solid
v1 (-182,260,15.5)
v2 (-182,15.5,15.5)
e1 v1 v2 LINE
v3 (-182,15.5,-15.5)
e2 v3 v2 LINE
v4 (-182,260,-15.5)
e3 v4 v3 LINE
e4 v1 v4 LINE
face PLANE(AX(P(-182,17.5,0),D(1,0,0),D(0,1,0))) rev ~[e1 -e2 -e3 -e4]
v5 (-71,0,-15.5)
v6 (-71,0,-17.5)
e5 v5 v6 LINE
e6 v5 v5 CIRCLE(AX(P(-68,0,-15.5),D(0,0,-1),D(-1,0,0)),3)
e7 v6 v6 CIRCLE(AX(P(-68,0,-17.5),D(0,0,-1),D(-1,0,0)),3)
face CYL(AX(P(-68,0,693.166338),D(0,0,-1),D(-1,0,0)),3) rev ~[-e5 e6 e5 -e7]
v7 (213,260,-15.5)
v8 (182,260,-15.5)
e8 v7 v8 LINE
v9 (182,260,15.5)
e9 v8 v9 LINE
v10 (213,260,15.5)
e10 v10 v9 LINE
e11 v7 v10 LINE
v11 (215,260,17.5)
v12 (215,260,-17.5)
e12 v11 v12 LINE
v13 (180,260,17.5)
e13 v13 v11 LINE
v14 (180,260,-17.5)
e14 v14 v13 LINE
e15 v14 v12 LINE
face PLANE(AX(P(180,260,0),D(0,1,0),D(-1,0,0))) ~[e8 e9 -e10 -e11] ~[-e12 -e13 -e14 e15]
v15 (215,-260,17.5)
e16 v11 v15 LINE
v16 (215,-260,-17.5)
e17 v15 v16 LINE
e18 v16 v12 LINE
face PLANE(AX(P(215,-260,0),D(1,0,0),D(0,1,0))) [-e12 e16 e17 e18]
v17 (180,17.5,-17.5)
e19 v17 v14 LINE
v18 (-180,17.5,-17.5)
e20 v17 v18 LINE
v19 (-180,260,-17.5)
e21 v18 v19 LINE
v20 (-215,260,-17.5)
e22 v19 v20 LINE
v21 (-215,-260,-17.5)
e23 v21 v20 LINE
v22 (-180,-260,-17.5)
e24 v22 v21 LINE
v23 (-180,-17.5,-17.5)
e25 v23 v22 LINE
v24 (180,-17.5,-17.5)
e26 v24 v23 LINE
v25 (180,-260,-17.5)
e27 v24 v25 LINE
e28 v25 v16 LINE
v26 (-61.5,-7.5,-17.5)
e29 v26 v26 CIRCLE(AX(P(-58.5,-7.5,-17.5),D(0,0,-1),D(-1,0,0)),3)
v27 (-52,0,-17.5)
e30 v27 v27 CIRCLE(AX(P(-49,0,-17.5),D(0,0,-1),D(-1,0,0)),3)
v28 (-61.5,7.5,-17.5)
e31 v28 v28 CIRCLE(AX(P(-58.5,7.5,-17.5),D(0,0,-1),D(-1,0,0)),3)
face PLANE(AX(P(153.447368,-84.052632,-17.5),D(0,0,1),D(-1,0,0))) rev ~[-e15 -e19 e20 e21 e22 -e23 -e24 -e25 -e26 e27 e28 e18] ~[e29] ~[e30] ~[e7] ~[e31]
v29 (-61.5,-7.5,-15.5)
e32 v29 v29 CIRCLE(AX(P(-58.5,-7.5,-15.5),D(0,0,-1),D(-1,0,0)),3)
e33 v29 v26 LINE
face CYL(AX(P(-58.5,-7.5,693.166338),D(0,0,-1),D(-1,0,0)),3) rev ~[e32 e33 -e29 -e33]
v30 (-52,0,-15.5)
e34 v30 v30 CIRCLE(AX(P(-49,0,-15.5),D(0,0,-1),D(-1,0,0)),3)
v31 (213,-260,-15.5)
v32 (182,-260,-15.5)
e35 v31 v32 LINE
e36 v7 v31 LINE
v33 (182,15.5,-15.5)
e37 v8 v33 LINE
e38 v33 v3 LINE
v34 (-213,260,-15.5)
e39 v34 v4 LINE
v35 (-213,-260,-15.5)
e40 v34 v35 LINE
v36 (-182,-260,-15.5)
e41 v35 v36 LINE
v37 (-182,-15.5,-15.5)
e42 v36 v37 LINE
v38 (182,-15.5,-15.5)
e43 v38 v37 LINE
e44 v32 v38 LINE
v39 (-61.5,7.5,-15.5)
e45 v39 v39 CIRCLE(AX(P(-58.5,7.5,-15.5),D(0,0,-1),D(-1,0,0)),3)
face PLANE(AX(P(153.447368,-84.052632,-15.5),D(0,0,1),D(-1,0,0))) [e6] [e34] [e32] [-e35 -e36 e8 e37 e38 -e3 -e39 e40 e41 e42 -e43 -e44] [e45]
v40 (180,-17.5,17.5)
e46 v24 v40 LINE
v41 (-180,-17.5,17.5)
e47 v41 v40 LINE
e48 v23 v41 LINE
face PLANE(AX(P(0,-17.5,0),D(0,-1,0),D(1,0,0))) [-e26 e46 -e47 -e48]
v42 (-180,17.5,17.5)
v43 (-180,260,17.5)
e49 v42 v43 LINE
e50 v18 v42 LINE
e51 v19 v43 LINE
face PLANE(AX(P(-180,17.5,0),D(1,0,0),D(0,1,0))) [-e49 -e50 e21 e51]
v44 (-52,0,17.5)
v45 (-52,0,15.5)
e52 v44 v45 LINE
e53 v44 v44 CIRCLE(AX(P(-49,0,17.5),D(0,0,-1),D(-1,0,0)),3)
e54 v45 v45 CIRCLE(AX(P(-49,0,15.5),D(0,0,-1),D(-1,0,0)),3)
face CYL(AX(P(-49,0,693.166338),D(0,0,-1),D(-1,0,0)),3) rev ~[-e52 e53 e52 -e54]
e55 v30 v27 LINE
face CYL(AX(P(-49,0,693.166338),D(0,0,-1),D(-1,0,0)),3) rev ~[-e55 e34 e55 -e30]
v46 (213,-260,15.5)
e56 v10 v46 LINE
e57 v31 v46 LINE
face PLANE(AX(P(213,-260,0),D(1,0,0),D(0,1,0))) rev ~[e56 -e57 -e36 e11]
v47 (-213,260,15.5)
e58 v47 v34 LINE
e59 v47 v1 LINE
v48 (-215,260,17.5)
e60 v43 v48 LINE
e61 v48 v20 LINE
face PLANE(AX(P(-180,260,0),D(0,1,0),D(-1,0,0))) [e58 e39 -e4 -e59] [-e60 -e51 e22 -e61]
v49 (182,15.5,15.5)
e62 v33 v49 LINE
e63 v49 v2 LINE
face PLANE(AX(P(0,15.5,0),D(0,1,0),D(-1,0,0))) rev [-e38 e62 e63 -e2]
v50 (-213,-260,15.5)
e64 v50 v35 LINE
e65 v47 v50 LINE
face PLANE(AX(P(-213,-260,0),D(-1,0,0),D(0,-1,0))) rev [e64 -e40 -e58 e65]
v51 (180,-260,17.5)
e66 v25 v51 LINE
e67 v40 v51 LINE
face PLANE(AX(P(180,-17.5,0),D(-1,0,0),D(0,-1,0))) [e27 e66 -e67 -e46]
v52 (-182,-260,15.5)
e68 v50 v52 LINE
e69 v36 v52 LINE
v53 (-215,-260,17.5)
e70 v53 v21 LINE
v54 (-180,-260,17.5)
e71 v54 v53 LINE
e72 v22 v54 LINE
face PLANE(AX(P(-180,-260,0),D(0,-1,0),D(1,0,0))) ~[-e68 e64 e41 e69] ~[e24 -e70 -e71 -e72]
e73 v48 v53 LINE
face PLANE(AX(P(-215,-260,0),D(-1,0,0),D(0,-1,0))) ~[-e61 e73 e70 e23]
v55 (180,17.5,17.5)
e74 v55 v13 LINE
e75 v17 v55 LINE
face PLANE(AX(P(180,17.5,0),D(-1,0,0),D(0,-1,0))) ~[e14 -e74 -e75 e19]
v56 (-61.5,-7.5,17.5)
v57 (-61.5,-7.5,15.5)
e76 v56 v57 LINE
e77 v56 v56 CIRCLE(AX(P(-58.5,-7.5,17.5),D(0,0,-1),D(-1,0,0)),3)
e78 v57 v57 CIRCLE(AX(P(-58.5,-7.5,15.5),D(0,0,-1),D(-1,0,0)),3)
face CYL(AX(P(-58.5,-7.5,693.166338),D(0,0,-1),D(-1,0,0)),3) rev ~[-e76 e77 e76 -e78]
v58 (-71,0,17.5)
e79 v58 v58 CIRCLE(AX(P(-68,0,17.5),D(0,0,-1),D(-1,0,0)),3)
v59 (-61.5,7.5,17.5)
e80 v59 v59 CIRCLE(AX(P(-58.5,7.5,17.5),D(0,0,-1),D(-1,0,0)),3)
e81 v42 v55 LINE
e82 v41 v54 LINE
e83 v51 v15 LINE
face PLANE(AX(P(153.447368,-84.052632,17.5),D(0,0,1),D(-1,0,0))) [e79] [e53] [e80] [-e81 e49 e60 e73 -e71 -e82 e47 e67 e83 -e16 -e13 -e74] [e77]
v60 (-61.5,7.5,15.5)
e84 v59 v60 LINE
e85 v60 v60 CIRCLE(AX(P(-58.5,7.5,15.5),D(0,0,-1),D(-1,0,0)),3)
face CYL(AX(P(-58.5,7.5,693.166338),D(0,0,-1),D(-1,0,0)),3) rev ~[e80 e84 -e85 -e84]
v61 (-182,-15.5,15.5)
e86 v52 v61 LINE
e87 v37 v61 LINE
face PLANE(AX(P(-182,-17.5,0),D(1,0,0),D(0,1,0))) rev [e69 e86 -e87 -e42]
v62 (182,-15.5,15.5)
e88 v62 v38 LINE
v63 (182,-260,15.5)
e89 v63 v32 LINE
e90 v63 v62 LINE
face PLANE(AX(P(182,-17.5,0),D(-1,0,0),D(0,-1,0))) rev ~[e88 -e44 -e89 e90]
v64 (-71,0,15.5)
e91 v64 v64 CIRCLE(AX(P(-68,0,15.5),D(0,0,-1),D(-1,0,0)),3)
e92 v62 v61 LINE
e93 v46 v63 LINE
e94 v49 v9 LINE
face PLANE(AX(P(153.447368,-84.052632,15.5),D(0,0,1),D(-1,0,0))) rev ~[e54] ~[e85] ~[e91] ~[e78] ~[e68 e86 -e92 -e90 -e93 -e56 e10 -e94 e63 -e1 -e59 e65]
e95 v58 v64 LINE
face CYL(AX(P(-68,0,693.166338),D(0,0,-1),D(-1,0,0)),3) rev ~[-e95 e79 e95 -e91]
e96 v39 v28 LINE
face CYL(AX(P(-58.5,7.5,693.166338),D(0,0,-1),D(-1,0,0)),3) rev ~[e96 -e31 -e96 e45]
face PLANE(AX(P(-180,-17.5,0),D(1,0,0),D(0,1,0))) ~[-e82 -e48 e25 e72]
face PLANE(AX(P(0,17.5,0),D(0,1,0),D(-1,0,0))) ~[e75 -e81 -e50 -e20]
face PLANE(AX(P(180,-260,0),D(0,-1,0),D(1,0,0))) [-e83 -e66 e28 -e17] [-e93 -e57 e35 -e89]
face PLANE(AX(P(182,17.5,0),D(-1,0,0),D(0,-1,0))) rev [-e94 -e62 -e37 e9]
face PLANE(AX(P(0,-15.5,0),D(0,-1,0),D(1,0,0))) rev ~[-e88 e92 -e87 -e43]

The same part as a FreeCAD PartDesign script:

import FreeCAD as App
import Part
import Sketcher

V = App.Vector
Q = App.Units.Quantity


def faces_at(feature, points):
    """Names of the faces that lie closest to the given points."""
    faces = feature.Shape.Faces
    near = lambda p: min(range(len(faces)), key=lambda i: faces[i].distToShape(Part.Vertex(*p))[0])
    return sorted({f"Face{near(p) + 1}" for p in points})

doc = App.newDocument("Part")
body = doc.addObject("PartDesign::Body", "Body")

sketch1 = body.newObject("Sketcher::SketchObject", "Sketch")
sketch1.AttachmentSupport = (doc.getObject("XY_Plane"), [""])
sketch1.MapMode = "FlatFace"
sketch1.addGeometry([
    Part.LineSegment(V(0, 0, 0), V(0, 18, 0)),
    Part.LineSegment(V(0, 18, 0), V(-180, 18, 0)),
    Part.LineSegment(V(-180, 18, 0), V(-180, 260, 0)),
    Part.LineSegment(V(-180, 260, 0), V(-215, 260, 0)),
    Part.LineSegment(V(-215, 260, 0), V(-215, 0, 0)),
    Part.LineSegment(V(-215, 0, 0), V(0, 0, 0)),
], False)
sketch1.addConstraint([
    Sketcher.Constraint("Coincident", 0, 2, 1, 1),
    Sketcher.Constraint("Coincident", 1, 2, 2, 1),
    Sketcher.Constraint("Coincident", 2, 2, 3, 1),
    Sketcher.Constraint("Coincident", 3, 2, 4, 1),
    Sketcher.Constraint("Coincident", 4, 2, 5, 1),
    Sketcher.Constraint("Coincident", 5, 2, 0, 1),
    Sketcher.Constraint("Vertical", 0),
    Sketcher.Constraint("Horizontal", 1),
    Sketcher.Constraint("Vertical", 2),
    Sketcher.Constraint("Horizontal", 3),
    Sketcher.Constraint("Vertical", 4),
    Sketcher.Constraint("Horizontal", 5),
    Sketcher.Constraint("Coincident", 5, 2, -1, 1),
    Sketcher.Constraint("DistanceX", 1, 2, 1, 1, Q("180 mm")),
    Sketcher.Constraint("DistanceX", 3, 2, 3, 1, Q("35 mm")),
    Sketcher.Constraint("DistanceY", 4, 2, 4, 1, Q("260 mm")),
    Sketcher.Constraint("DistanceY", 0, 1, 0, 2, Q("17.5 mm")),
])
pad1 = body.newObject("PartDesign::Pad", "Pad")
pad1.Profile = sketch1
pad1.Length = 35
pad1.Midplane = True
body2 = doc.addObject("PartDesign::Body", "Body001")
doc.recompute()

body2.BaseFeature = body
doc.recompute()

mirroring = doc.addObject("Part::Mirroring", "Mirroring")
mirroring.Source = body
mirroring.Base = V(0, 0, 0)
mirroring.Normal = V(0, -1, 0)
body3 = doc.addObject("PartDesign::Body", "Body002")
body3.BaseFeature = mirroring
boolean = body2.newObject("PartDesign::Boolean", "Boolean")
boolean.Type = "Fuse"
boolean.addObjects([body3])
doc.recompute()
body4 = doc.addObject("PartDesign::Body", "Body003")
doc.recompute()

body4.BaseFeature = body2
doc.recompute()

mirroring2 = doc.addObject("Part::Mirroring", "Mirroring001")
mirroring2.Source = body2
mirroring2.Base = V(0, 0, 0)
mirroring2.Normal = V(1, 0, 0)
body5 = doc.addObject("PartDesign::Body", "Body004")
body5.BaseFeature = mirroring2
boolean2 = body4.newObject("PartDesign::Boolean", "Boolean001")
boolean2.Type = "Fuse"
boolean2.addObjects([body5])
doc.recompute()

thickness = body4.newObject("PartDesign::Thickness", "Thickness")
thickness.Base = (boolean2, faces_at(boolean2, [
    (-197.5, -260, 0),
    (197.5, -260, 0),
    (197.5, 260, 0),
    (-197.5, 260, 0),
]))
thickness.Value = 2
thickness.Reversed = True
thickness.Join = "Intersection"

sketch2 = body4.newObject("Sketcher::SketchObject", "Sketch001")
sketch2.AttachmentSupport = (doc.getObject("XY_Plane003"), [""])
sketch2.MapMode = "FlatFace"
sketch2.AttachmentOffset = App.Placement(V(0, 0, 17.5), App.Rotation())
sketch2.addGeometry([
    Part.Circle(V(-68, 0, 0), V(0, 0, 1), 3),
    Part.Circle(V(-58.5, 7.5, 0), V(0, 0, 1), 3),
    Part.Circle(V(-49, 0, 0), V(0, 0, 1), 3),
    Part.Circle(V(-58.5, -7.5, 0), V(0, 0, 1), 3),
], False)
sketch2.addConstraint([
    Sketcher.Constraint("Equal", 0, 1),
    Sketcher.Constraint("Equal", 1, 2),
    Sketcher.Constraint("Equal", 2, 3),
    Sketcher.Constraint("Symmetric", 1, 3, 3, 3, -1),
    Sketcher.Constraint("PointOnObject", 0, 3, -1),
    Sketcher.Constraint("PointOnObject", 2, 3, -1),
    Sketcher.Constraint("Diameter", 0, Q("6 mm")),
    Sketcher.Constraint("DistanceX", 0, 3, -1, 1, Q("68 mm")),
    Sketcher.Constraint("DistanceX", 2, 3, -1, 1, Q("49 mm")),
    Sketcher.Constraint("DistanceY", 3, 3, 1, 3, Q("15 mm")),
    Sketcher.Constraint("DistanceX", 1, 3, -1, 1, Q("58.5 mm")),
])
doc.recompute()
hole = body4.newObject("PartDesign::Hole", "Hole")
hole.Profile = sketch2
hole.ThreadType = "None"
hole.Diameter = 6
hole.DepthType = "ThroughAll"
mirroring.Visibility = False
mirroring2.Visibility = False

doc.recompute()
